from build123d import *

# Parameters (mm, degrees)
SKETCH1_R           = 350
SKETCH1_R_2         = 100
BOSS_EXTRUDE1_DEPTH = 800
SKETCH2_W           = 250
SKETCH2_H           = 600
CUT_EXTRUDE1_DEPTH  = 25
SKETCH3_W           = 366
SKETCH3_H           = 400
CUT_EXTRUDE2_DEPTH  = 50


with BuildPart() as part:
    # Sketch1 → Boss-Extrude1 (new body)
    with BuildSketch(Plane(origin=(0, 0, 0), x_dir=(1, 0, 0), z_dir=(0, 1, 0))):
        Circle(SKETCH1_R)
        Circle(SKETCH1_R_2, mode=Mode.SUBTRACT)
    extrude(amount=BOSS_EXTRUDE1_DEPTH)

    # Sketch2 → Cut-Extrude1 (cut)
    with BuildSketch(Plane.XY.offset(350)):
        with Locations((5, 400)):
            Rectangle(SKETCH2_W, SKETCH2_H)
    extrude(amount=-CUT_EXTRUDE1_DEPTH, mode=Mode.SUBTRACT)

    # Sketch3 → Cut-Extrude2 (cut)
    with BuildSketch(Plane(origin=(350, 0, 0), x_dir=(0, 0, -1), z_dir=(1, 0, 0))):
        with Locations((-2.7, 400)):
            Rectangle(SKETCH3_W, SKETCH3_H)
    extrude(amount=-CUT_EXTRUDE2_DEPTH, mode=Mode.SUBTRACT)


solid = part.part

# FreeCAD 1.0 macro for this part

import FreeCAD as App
import Part
import Sketcher
from FreeCAD import Vector

doc = App.newDocument("Part")
params = doc.addObject("Spreadsheet::Sheet", "Params")
for row, (alias, value) in enumerate([
    ("sketch1_diameter", "700 mm"),
    ("sketch1_diameter2", "200 mm"),
    ("pad1_length", "800 mm"),
    ("sketch2_width", "250 mm"),
    ("sketch2_height", "600 mm"),
    ("pocket1_length", "25 mm"),
    ("sketch3_width", "400 mm"),
    ("sketch3_height", "366 mm"),
    ("pocket2_length", "50 mm"),
], start=1):
    params.set(f"A{row}", alias)
    params.set(f"B{row}", "=" + value)
    params.setAlias(f"B{row}", alias)

body = doc.addObject("PartDesign::Body", "Body")

# Sketch on XZ plane
sketch1 = body.newObject("Sketcher::SketchObject", "Sketch")
sketch1.AttachmentSupport = (doc.getObject("XZ_Plane"), [""])
sketch1.MapMode = "FlatFace"
sketch1.addGeometry([
    Part.Circle(Vector(0, 0, 0), Vector(0, 0, 1), 350),
    Part.Circle(Vector(0, 0, 0), Vector(0, 0, 1), 100),
], False)
sketch1.addConstraint([
    Sketcher.Constraint("Coincident", 0, 3, -1, 1),
    Sketcher.Constraint("Coincident", 1, 3, -1, 1),
    Sketcher.Constraint("Diameter", 0, 700.0),
    Sketcher.Constraint("Diameter", 1, 200.0),
])
sketch1.setExpression("Constraints[2]", "Params.sketch1_diameter")
sketch1.setExpression("Constraints[3]", "Params.sketch1_diameter2")
pad1 = body.newObject("PartDesign::Pad", "Pad")
pad1.Profile = sketch1
pad1.setExpression("Length", "Params.pad1_length")
pad1.Reversed = True

# Sketch on XY plane
sketch2 = body.newObject("Sketcher::SketchObject", "Sketch001")
sketch2.AttachmentSupport = (doc.getObject("XY_Plane"), [""])
sketch2.MapMode = "FlatFace"
sketch2.AttachmentOffset = App.Placement(Vector(0, 0, 350), App.Rotation())
sketch2.addGeometry([
    Part.LineSegment(Vector(-120, 700, 0), Vector(-120, 100, 0)),
    Part.LineSegment(Vector(-120, 100, 0), Vector(130, 100, 0)),
    Part.LineSegment(Vector(130, 100, 0), Vector(130, 700, 0)),
    Part.LineSegment(Vector(130, 700, 0), Vector(-120, 700, 0)),
], False)
sketch2.addConstraint([
    Sketcher.Constraint("Coincident", 0, 2, 1, 1),
    Sketcher.Constraint("Coincident", 1, 2, 2, 1),
    Sketcher.Constraint("Coincident", 2, 2, 3, 1),
    Sketcher.Constraint("Coincident", 3, 2, 0, 1),
    Sketcher.Constraint("Vertical", 0),
    Sketcher.Constraint("Horizontal", 1),
    Sketcher.Constraint("Vertical", 2),
    Sketcher.Constraint("Horizontal", 3),
    Sketcher.Constraint("DistanceX", 1, 1, 1, 2, 250.0),
    Sketcher.Constraint("DistanceY", 0, 2, 0, 1, 600.0),
    Sketcher.Constraint("DistanceX", 0, 2, -1, 1, 120.0),
    Sketcher.Constraint("DistanceY", -1, 1, 0, 2, 100.0),
])
sketch2.setExpression("Constraints[8]", "Params.sketch2_width")
sketch2.setExpression("Constraints[9]", "Params.sketch2_height")
pocket1 = body.newObject("PartDesign::Pocket", "Pocket")
pocket1.Profile = sketch2
pocket1.setExpression("Length", "Params.pocket1_length")

# Sketch on YZ plane
sketch3 = body.newObject("Sketcher::SketchObject", "Sketch002")
sketch3.AttachmentSupport = (doc.getObject("YZ_Plane"), [""])
sketch3.MapMode = "FlatFace"
sketch3.AttachmentOffset = App.Placement(Vector(0, 0, 350), App.Rotation())
sketch3.addGeometry([
    Part.LineSegment(Vector(600, 186, 0), Vector(200, 186, 0)),
    Part.LineSegment(Vector(200, 186, 0), Vector(200, -180, 0)),
    Part.LineSegment(Vector(200, -180, 0), Vector(600, -180, 0)),
    Part.LineSegment(Vector(600, -180, 0), Vector(600, 186, 0)),
], False)
sketch3.addConstraint([
    Sketcher.Constraint("Coincident", 0, 2, 1, 1),
    Sketcher.Constraint("Coincident", 1, 2, 2, 1),
    Sketcher.Constraint("Coincident", 2, 2, 3, 1),
    Sketcher.Constraint("Coincident", 3, 2, 0, 1),
    Sketcher.Constraint("Horizontal", 0),
    Sketcher.Constraint("Vertical", 1),
    Sketcher.Constraint("Horizontal", 2),
    Sketcher.Constraint("Vertical", 3),
    Sketcher.Constraint("DistanceX", 0, 2, 0, 1, 400.0),
    Sketcher.Constraint("DistanceY", 1, 2, 1, 1, 366.0),
    Sketcher.Constraint("DistanceX", -1, 1, 0, 2, 200.0),
    Sketcher.Constraint("DistanceY", -1, 1, 0, 2, 185.7),
])
sketch3.setExpression("Constraints[8]", "Params.sketch3_width")
sketch3.setExpression("Constraints[9]", "Params.sketch3_height")
pocket2 = body.newObject("PartDesign::Pocket", "Pocket001")
pocket2.Profile = sketch3
pocket2.setExpression("Length", "Params.pocket2_length")

doc.recompute()
